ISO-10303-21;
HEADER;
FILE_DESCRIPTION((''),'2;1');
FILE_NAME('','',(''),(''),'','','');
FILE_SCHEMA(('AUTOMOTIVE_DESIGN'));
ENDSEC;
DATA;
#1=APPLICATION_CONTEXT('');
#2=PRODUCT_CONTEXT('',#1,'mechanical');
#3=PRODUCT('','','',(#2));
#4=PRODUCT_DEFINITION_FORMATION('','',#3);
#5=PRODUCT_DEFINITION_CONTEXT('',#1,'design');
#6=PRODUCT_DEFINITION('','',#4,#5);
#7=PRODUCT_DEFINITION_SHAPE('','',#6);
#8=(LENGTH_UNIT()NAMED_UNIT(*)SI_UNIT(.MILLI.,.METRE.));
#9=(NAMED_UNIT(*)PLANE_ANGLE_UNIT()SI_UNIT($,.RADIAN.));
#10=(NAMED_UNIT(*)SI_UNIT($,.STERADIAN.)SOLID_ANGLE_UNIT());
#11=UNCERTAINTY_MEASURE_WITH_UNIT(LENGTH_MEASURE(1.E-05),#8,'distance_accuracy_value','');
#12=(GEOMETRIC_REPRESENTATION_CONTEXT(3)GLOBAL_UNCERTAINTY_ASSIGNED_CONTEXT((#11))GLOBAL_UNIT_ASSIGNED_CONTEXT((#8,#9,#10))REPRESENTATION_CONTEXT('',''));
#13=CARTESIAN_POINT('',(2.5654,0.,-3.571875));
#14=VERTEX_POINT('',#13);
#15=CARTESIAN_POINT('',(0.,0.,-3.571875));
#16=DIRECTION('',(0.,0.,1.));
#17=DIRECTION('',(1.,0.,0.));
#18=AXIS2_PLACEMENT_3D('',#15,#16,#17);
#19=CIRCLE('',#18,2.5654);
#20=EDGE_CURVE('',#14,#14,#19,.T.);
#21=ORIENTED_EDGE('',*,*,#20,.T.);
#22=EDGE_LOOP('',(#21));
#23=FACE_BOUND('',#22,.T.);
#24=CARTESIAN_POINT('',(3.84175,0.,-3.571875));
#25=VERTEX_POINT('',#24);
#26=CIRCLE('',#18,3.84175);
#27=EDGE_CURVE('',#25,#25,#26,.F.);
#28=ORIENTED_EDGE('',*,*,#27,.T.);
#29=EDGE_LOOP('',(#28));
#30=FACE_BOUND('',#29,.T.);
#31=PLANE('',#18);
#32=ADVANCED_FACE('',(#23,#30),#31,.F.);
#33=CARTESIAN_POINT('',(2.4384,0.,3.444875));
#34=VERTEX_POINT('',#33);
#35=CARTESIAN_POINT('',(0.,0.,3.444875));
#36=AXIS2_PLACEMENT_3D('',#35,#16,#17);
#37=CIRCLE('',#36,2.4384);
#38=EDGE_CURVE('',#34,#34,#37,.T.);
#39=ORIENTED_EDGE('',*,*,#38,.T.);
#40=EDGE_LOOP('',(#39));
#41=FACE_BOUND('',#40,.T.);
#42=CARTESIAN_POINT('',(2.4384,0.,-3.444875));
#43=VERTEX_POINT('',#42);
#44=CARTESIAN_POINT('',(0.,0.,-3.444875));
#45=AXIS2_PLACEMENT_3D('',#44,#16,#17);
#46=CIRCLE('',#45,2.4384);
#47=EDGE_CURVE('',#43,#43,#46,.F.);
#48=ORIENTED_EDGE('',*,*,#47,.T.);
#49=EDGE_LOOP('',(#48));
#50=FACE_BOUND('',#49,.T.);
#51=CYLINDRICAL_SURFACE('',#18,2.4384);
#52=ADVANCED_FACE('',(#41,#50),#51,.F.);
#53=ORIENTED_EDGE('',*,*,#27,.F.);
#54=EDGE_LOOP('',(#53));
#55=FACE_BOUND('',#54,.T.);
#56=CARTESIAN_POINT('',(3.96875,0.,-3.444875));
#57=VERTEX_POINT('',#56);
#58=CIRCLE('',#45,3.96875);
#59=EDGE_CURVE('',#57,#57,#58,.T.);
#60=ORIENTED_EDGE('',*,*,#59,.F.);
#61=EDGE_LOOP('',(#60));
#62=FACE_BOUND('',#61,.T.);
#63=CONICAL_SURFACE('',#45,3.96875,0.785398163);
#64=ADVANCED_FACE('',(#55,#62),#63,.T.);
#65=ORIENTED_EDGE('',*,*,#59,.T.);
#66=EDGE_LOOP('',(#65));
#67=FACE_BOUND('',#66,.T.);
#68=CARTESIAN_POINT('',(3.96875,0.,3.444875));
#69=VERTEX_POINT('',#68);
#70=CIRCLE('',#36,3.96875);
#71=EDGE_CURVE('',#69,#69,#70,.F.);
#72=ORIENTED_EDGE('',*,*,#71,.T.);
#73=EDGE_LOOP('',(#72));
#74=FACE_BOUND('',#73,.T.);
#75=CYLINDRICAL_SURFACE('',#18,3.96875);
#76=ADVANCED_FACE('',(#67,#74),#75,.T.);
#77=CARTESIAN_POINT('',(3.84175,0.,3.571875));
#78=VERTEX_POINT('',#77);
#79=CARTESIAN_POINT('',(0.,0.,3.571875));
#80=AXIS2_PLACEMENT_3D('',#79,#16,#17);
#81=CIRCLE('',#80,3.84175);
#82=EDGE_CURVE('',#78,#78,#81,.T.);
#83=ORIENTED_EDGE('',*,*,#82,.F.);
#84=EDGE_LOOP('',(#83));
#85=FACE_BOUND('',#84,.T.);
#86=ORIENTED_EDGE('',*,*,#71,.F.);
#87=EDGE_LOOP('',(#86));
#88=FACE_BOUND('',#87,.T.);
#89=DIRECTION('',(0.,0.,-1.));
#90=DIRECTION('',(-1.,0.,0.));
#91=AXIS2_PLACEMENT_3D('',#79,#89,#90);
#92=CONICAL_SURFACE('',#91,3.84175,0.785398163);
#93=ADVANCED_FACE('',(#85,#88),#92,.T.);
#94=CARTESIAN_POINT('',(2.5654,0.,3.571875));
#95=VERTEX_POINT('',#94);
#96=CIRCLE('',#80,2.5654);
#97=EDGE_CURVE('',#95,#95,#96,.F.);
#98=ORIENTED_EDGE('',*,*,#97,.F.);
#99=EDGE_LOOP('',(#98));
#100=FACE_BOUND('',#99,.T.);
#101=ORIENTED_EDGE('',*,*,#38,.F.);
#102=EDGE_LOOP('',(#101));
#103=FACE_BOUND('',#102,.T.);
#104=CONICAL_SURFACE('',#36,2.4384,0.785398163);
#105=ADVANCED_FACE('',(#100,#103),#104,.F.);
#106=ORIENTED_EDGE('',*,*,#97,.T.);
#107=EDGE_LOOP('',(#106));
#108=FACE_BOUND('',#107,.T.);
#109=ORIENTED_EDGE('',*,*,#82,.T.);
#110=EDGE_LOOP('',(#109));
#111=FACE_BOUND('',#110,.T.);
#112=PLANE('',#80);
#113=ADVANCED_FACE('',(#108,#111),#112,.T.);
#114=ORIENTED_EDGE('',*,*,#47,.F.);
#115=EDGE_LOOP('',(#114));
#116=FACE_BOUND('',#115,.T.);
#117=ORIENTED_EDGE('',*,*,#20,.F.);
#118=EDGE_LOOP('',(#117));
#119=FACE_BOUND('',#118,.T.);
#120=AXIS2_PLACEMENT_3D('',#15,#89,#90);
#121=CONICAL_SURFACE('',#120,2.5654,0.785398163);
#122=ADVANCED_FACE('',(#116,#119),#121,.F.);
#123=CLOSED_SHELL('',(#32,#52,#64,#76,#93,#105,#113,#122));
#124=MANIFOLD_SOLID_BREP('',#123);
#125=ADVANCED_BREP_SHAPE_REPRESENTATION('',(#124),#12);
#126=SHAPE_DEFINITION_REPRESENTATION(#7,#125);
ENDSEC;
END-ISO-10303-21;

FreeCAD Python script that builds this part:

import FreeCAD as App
import Part
import Sketcher
from FreeCAD import Vector
Q = App.Units.Quantity


def edges_at(feature, points):
    """Names of the edges that pass closest to the given points."""
    edges = feature.Shape.Edges
    near = lambda p: min(range(len(edges)), key=lambda i: edges[i].distToShape(Part.Vertex(*p))[0])
    return sorted({f"Edge{near(p) + 1}" for p in points})

doc = App.newDocument("Part")
body = doc.addObject("PartDesign::Body", "Body")

# Sketch on XY plane
sketch1 = body.newObject("Sketcher::SketchObject", "Sketch")
sketch1.AttachmentSupport = (doc.getObject("XY_Plane"), [""])
sketch1.MapMode = "FlatFace"
sketch1.addGeometry([
    Part.Circle(Vector(0, 0, 0), Vector(0, 0, 1), 3.96875),
    Part.Circle(Vector(0, 0, 0), Vector(0, 0, 1), 2.4384),
], False)
sketch1.addConstraint([
    Sketcher.Constraint("Coincident", 0, 3, -1, 1),
    Sketcher.Constraint("Coincident", 1, 3, -1, 1),
    Sketcher.Constraint("Diameter", 0, Q("0.3125 in")),
    Sketcher.Constraint("Diameter", 1, Q("0.192 in")),
])
pad1 = body.newObject("PartDesign::Pad", "Pad")
pad1.Profile = sketch1
pad1.Type = "TwoLengths"
pad1.Length = Q("0.140625 in")
pad1.Length2 = Q("0.140625 in")
doc.recompute()

chamfer = body.newObject("PartDesign::Chamfer", "Chamfer")
chamfer.Base = (pad1, edges_at(pad1, [
    (-3.969, 0, -3.572),
    (-2.438, 0, -3.572),
    (-3.969, 0, 3.572),
    (-2.438, 0, 3.572),
]))
chamfer.Size = Q("0.005 in")

doc.recompute()
